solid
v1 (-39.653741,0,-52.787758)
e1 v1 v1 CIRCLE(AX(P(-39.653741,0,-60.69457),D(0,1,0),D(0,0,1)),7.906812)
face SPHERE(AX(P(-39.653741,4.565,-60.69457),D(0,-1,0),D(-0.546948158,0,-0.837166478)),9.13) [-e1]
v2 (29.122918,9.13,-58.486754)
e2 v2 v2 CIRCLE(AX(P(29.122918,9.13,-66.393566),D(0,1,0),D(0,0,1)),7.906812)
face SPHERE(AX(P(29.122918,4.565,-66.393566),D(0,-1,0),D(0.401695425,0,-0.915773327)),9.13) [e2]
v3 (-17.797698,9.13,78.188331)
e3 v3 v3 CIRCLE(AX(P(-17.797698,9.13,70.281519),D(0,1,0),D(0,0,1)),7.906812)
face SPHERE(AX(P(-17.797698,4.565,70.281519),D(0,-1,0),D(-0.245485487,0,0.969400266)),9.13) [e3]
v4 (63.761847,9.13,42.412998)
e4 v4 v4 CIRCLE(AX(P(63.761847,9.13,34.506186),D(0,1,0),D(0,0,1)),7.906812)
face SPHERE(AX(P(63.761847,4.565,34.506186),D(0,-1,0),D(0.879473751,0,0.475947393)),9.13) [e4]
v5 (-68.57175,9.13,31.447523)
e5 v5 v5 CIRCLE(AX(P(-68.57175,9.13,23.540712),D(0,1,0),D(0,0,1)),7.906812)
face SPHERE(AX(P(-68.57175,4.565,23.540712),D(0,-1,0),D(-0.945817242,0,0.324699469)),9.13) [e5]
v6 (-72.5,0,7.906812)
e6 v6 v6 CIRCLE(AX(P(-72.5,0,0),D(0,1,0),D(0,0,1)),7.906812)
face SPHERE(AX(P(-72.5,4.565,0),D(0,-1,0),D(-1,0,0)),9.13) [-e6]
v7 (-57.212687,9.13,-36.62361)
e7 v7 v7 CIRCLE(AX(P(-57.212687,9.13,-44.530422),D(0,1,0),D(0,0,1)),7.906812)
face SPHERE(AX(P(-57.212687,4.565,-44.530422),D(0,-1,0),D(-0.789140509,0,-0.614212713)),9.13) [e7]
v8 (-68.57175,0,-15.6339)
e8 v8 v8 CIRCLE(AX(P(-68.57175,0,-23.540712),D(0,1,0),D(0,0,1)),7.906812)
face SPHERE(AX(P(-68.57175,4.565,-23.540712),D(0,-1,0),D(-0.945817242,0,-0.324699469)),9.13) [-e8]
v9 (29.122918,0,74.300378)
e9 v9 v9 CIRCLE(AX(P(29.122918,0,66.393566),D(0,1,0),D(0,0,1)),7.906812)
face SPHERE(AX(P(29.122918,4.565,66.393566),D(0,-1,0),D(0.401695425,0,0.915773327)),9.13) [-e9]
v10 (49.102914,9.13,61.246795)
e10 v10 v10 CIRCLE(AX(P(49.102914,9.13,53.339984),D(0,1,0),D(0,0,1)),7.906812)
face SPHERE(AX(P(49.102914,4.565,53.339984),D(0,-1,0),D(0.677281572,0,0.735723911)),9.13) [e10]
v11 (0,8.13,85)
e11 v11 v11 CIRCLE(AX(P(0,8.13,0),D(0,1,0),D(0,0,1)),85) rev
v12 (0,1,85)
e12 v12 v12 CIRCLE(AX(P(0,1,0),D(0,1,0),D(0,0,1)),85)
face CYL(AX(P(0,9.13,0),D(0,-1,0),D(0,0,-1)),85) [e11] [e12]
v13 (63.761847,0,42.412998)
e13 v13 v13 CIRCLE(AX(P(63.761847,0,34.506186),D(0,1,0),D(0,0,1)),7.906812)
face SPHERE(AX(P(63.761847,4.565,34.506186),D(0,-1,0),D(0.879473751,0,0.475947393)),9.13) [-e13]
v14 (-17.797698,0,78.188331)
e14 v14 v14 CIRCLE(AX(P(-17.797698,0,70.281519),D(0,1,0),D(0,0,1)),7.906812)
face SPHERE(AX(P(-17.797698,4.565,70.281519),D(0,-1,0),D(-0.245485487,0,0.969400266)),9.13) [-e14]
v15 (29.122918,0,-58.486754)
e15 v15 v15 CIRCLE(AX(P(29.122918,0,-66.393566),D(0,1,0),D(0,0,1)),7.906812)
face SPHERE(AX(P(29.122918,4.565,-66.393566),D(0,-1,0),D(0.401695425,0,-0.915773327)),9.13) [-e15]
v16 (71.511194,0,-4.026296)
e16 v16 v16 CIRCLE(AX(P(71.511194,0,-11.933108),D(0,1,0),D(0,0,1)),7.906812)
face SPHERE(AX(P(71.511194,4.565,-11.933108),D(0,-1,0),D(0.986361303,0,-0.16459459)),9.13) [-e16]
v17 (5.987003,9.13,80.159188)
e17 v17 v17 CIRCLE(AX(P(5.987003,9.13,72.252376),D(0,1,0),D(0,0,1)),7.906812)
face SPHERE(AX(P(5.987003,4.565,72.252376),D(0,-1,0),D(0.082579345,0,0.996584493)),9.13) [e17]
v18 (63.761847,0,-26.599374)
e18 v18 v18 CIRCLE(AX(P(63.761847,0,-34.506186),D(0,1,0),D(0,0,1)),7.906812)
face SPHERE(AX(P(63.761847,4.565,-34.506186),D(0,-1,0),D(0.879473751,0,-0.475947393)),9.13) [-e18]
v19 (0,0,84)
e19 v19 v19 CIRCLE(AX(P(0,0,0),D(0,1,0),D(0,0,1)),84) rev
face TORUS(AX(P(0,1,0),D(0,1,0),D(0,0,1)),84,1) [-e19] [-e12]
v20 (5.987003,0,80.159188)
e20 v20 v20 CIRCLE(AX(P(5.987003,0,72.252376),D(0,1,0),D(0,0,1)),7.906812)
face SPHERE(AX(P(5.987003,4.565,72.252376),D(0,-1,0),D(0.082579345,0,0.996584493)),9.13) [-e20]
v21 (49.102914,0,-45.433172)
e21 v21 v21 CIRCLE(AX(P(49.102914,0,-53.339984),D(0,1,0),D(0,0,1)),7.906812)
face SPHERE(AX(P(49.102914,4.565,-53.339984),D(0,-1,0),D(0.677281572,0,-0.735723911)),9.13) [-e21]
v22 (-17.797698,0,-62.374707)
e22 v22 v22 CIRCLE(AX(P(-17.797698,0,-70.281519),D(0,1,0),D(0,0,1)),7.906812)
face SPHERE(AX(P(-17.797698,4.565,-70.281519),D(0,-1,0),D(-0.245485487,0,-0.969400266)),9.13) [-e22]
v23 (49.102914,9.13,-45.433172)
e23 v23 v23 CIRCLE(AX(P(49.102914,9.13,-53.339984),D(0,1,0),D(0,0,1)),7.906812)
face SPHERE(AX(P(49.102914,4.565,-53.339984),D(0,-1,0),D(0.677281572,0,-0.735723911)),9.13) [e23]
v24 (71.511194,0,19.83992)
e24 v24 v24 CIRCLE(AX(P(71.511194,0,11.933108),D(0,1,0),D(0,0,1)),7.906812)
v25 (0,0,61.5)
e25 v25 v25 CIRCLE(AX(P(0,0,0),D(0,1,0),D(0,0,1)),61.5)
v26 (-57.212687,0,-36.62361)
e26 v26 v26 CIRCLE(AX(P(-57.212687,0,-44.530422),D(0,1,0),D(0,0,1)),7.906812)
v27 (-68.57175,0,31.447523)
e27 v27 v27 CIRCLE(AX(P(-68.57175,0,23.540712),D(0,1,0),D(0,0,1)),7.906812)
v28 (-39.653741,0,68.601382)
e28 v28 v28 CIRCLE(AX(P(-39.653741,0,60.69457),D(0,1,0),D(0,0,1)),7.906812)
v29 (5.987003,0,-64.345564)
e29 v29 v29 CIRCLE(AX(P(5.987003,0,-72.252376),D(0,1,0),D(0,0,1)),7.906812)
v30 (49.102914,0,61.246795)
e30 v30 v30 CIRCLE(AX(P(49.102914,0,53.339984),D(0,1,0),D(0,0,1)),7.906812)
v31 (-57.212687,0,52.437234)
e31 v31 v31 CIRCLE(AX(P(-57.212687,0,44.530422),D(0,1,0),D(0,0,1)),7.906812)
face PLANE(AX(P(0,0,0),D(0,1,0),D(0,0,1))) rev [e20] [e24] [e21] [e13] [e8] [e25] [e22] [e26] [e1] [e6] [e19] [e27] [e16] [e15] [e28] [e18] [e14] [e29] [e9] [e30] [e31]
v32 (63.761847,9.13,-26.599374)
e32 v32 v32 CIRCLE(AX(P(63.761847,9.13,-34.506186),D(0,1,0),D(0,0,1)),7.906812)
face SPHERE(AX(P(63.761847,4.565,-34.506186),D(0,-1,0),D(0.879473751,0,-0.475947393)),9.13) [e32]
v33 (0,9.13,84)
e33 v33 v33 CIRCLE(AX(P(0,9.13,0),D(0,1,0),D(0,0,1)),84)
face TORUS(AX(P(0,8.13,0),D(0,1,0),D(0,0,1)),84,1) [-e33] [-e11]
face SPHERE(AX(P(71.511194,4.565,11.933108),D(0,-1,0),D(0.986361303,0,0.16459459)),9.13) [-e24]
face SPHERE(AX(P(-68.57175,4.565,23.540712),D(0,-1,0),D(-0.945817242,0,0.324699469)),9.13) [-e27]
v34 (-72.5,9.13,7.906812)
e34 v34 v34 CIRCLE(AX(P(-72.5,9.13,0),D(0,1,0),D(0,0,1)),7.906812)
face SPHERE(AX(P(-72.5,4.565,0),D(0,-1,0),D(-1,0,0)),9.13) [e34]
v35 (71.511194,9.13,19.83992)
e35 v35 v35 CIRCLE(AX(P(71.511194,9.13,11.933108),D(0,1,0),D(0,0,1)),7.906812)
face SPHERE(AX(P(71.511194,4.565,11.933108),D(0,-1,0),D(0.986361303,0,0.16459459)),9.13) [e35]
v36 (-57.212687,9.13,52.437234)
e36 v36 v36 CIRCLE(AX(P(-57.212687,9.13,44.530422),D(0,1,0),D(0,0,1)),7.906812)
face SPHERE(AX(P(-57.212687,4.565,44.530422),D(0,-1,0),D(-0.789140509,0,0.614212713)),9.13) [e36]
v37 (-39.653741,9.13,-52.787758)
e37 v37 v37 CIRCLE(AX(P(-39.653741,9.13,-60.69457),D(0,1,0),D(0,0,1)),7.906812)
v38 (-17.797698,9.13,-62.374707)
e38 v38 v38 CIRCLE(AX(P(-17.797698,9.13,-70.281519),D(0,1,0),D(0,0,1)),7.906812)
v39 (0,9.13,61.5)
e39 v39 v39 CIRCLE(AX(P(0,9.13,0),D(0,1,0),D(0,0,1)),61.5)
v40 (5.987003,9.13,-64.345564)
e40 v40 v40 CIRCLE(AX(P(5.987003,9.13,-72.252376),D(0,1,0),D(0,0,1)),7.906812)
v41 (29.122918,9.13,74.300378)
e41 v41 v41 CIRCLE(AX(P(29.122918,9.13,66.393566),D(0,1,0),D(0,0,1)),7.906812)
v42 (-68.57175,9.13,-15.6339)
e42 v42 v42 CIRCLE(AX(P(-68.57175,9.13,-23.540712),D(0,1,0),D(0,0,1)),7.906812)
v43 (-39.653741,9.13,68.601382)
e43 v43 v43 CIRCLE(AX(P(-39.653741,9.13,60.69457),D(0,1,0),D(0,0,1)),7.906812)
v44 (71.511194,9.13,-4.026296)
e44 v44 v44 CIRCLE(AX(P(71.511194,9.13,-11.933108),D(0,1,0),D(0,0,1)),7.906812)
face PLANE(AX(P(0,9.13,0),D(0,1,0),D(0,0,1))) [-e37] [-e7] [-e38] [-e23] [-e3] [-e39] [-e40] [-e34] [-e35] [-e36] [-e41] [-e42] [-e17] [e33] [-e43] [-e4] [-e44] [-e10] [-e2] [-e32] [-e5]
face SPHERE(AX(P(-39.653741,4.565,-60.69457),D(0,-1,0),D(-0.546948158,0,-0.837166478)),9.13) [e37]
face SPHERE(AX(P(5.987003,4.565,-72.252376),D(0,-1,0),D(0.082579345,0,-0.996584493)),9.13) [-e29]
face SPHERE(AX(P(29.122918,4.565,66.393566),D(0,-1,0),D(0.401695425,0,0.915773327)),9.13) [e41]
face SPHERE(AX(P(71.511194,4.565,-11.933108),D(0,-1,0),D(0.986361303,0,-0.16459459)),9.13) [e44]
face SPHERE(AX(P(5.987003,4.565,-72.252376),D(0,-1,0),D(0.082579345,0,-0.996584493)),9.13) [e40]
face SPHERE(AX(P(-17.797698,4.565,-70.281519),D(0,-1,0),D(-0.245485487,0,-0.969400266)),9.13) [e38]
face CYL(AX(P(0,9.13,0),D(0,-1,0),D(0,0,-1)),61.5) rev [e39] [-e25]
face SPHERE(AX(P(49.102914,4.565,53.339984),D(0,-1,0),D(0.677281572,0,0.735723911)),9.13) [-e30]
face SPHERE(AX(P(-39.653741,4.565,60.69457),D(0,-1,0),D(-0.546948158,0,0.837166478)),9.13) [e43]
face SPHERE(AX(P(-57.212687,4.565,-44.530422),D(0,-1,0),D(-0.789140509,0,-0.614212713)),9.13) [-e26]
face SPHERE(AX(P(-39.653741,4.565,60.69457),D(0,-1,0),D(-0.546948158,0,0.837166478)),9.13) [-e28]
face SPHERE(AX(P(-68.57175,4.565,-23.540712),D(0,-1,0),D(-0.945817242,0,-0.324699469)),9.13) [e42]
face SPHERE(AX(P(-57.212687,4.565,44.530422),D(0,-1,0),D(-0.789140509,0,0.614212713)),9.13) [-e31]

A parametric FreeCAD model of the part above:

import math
import FreeCAD as App
import Part
import Sketcher

V = App.Vector


def edges_at(feature, points):
    """Names of the edges that pass closest to the given points."""
    edges = feature.Shape.Edges
    near = lambda p: min(range(len(edges)), key=lambda i: edges[i].distToShape(Part.Vertex(*p))[0])
    return sorted({f"Edge{near(p) + 1}" for p in points})

doc = App.newDocument("Part")
params = doc.addObject("Spreadsheet::Sheet", "Params")
for row, (alias, value) in enumerate([
    ("sketch1_diameter", "170 mm"),
    ("sketch1_diameter2", "123 mm"),
    ("pad1_length", "9.13 mm"),
    ("fillet_radius", "1 mm"),
    ("sketch2_radius", "9.13 mm"),
    ("revolution_angle", "360 deg"),
], start=1):
    params.set(f"A{row}", alias)
    params.set(f"B{row}", "=" + value)
    params.setAlias(f"B{row}", alias)

body = doc.addObject("PartDesign::Body", "Body")

# Sketch on XZ plane
sketch1 = body.newObject("Sketcher::SketchObject", "Sketch")
sketch1.AttachmentSupport = (doc.getObject("XZ_Plane"), [""])
sketch1.MapMode = "FlatFace"
sketch1.addGeometry(Part.Circle(V(0, 0, 0), V(0, 0, 1), 85), False)
sketch1.addGeometry(Part.Circle(V(0, 0, 0), V(0, 0, 1), 62), False)
sketch1.addConstraint(Sketcher.Constraint("Coincident", 0, 3, -1, 1))
sketch1.addConstraint(Sketcher.Constraint("Coincident", 1, 3, -1, 1))
sketch1.addConstraint(Sketcher.Constraint("Diameter", 0, 170.0))
sketch1.addConstraint(Sketcher.Constraint("Diameter", 1, 123.0))
sketch1.setExpression("Constraints[2]", "Params.sketch1_diameter")
sketch1.setExpression("Constraints[3]", "Params.sketch1_diameter2")
pad1 = body.newObject("PartDesign::Pad", "Pad")
pad1.Profile = sketch1
pad1.setExpression("Length", "Params.pad1_length")
pad1.Reversed = True
doc.recompute()

fillet = body.newObject("PartDesign::Fillet", "Fillet")
fillet.Base = (pad1, edges_at(pad1, [(-85, 0, 0), (-85, 9.13, 0)]))
fillet.setExpression("Radius", "Params.fillet_radius")

# Sketch on XY plane
sketch2 = body.newObject("Sketcher::SketchObject", "Sketch001")
sketch2.AttachmentSupport = (doc.getObject("XY_Plane"), [""])
sketch2.MapMode = "FlatFace"
sketch2.addGeometry(Part.LineSegment(V(-72, 14, 0), V(-72, -5, 0)), False)
sketch2.addGeometry(Part.ArcOfCircle(Part.Circle(V(-72, 5, 0), V(0, 0, 1), 9), math.radians(-90), math.radians(90)), False)
sketch2.addGeometry(Part.LineSegment(V(-72, -5, 0), V(-72, 14, 0)), True)  # axis
sketch2.addConstraint(Sketcher.Constraint("Coincident", 0, 1, 1, 2))
sketch2.addConstraint(Sketcher.Constraint("Coincident", 1, 1, 0, 2))
sketch2.addConstraint(Sketcher.Constraint("Vertical", 0))
sketch2.addConstraint(Sketcher.Constraint("Vertical", 2))
sketch2.addConstraint(Sketcher.Constraint("Coincident", 2, 1, 1, 1))
sketch2.addConstraint(Sketcher.Constraint("Vertical", 1, 3, 0, 1))
sketch2.addConstraint(Sketcher.Constraint("Equal", 0, 2))
sketch2.addConstraint(Sketcher.Constraint("Radius", 1, 9.13))
sketch2.addConstraint(Sketcher.Constraint("DistanceX", 1, 3, -1, 1, 72.5))
sketch2.addConstraint(Sketcher.Constraint("DistanceY", -1, 1, 1, 3, 4.565))
sketch2.setExpression("Constraints[7]", "Params.sketch2_radius")
revolution = body.newObject("PartDesign::Revolution", "Revolution")
revolution.Profile = sketch2
revolution.ReferenceAxis = (sketch2, ["Axis0"])
revolution.setExpression("Angle", "Params.revolution_angle")
doc.recompute()

polarpattern = body.newObject("PartDesign::PolarPattern", "PolarPattern")
polarpattern.Originals = [revolution]
polarpattern.Axis = (doc.getObject("Y_Axis"), [""])
polarpattern.Angle = 360
polarpattern.Occurrences = 19
body.Tip = polarpattern

doc.recompute()
